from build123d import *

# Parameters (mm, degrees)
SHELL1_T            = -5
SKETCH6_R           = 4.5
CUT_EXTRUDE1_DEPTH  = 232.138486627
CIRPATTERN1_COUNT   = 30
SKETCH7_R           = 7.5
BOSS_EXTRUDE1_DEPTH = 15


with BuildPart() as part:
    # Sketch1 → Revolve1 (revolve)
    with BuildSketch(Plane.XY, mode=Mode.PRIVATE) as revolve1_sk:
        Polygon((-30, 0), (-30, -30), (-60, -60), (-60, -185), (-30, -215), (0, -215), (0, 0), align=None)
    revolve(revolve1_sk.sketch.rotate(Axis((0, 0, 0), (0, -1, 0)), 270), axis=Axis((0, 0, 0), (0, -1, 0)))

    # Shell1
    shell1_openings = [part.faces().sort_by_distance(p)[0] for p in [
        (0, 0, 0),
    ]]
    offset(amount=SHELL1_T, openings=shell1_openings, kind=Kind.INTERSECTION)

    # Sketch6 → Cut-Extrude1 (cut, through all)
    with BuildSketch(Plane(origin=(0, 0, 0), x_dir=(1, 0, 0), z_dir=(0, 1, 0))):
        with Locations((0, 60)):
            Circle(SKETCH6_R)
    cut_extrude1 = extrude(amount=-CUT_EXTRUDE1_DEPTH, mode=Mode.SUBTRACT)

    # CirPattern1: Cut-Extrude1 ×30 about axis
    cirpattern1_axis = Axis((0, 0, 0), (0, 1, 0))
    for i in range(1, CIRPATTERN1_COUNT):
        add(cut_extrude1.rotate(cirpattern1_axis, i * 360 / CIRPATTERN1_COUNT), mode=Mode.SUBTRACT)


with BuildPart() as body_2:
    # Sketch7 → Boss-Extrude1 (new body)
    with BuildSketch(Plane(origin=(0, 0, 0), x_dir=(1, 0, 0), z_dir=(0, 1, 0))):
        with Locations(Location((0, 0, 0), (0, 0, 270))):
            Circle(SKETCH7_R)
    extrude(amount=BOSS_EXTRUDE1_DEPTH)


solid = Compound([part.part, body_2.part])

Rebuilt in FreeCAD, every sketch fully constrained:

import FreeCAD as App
import Part
import Sketcher
Q = App.Units.Quantity


def faces_at(feature, points):
    """Names of the faces that lie closest to the given points."""
    faces = feature.Shape.Faces
    near = lambda p: min(range(len(faces)), key=lambda i: faces[i].distToShape(Part.Vertex(*p))[0])
    return sorted({f"Face{near(p) + 1}" for p in points})


def add_polygon(sketch, points):
    """Adds a closed chain of lines whose ends are joined by coincident constraints."""
    first, n = sketch.GeometryCount, len(points)
    for a, b in zip(points, points[1:] + points[:1]):
        sketch.addGeometry(Part.LineSegment(App.Vector(*a, 0), App.Vector(*b, 0)), False)
    for i in range(n):
        sketch.addConstraint(Sketcher.Constraint("Coincident", first + i, 2, first + (i + 1) % n, 1))

doc = App.newDocument("Part")
body = doc.addObject("PartDesign::Body", "Body")

# Sketch on XY plane
sketch1 = doc.addObject("Sketcher::SketchObject", "Sketch")
body.addObject(sketch1)
sketch1.AttachmentSupport = (doc.XY_Plane, [""])
sketch1.MapMode = "FlatFace"
add_polygon(sketch1, [(-30, 0), (-30, -30), (-60, -60), (-60, -185), (-30, -215), (0, -215), (0, 0)])  # lines 0-6
sketch1.addConstraint([
    Sketcher.Constraint("Vertical", 0),
    Sketcher.Constraint("Vertical", 2),
    Sketcher.Constraint("Horizontal", 4),
    Sketcher.Constraint("Vertical", 5),
    Sketcher.Constraint("Horizontal", 6),
    Sketcher.Constraint("Coincident", 5, 2, -1, 1),
    Sketcher.Constraint("Perpendicular", 1, 3),
    Sketcher.Constraint("Vertical", 0, 2, 3, 2),
    Sketcher.Constraint("Equal", 6, 0),
    Sketcher.Constraint("Equal", 1, 3),
    Sketcher.Constraint("DistanceX", 4, 1, 4, 2, Q("30 mm")),
    Sketcher.Constraint("DistanceY", 2, 2, 2, 1, Q("125 mm")),
    Sketcher.Constraint("DistanceY", 5, 1, 5, 2, Q("215 mm")),
])
revolution = doc.addObject("PartDesign::Revolution", "Revolution")
body.addObject(revolution)
revolution.Profile = sketch1
revolution.ReferenceAxis = (sketch1, ["V_Axis"])
revolution.Angle = 360
doc.recompute()

thickness = doc.addObject("PartDesign::Thickness", "Thickness")
body.addObject(thickness)
thickness.Base = (revolution, faces_at(revolution, [(0, 0, 0)]))
thickness.Value = 5
thickness.Reversed = True
thickness.Join = "Intersection"

# Sketch on XZ plane
sketch2 = doc.addObject("Sketcher::SketchObject", "Sketch001")
body.addObject(sketch2)
sketch2.AttachmentSupport = (doc.XZ_Plane, [""])
sketch2.MapMode = "FlatFace"
sketch2.addGeometry(Part.Circle(App.Vector(0, -60, 0), App.Vector(0, 0, 1), 4.5), False)
sketch2.addConstraint([
    Sketcher.Constraint("PointOnObject", 0, 3, -2),
    Sketcher.Constraint("Diameter", 0, Q("9 mm")),
    Sketcher.Constraint("DistanceY", 0, 3, -1, 1, Q("60 mm")),
])
pocket1 = doc.addObject("PartDesign::Pocket", "Pocket")
body.addObject(pocket1)
pocket1.Profile = sketch2
pocket1.Type = "ThroughAll"
pocket1.Reversed = True
doc.recompute()

polarpattern = doc.addObject("PartDesign::PolarPattern", "PolarPattern")
body.addObject(polarpattern)
polarpattern.Originals = [pocket1]
polarpattern.Axis = (doc.Y_Axis, [""])
polarpattern.Angle = 360
polarpattern.Occurrences = 30
body.Tip = polarpattern
body2 = doc.addObject("PartDesign::Body", "Body001")

# Sketch on XZ plane
sketch3 = doc.addObject("Sketcher::SketchObject", "Sketch002")
body2.addObject(sketch3)
sketch3.AttachmentSupport = (doc.getObject("XZ_Plane001"), [""])
sketch3.MapMode = "FlatFace"
sketch3.addGeometry(Part.Circle(App.Vector(0, 0, 0), App.Vector(0, 0, 1), 8), False)
sketch3.addConstraint([
    Sketcher.Constraint("Coincident", 0, 3, -1, 1),
    Sketcher.Constraint("Diameter", 0, Q("15 mm")),
])
pad1 = doc.addObject("PartDesign::Pad", "Pad")
body2.addObject(pad1)
pad1.Profile = sketch3
pad1.Length = 15
pad1.Reversed = True

doc.recompute()
